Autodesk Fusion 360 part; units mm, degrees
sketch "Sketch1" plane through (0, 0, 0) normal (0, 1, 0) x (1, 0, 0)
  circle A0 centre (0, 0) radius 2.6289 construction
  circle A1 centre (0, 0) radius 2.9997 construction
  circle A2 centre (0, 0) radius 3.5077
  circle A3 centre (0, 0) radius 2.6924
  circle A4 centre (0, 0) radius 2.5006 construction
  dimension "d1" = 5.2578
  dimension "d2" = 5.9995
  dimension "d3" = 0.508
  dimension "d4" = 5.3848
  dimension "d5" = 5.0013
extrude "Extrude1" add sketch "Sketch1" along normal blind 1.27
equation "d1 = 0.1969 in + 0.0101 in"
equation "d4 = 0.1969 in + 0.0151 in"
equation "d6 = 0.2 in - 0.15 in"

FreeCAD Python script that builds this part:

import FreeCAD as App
import Part
import Sketcher

V = App.Vector
Q = App.Units.Quantity

doc = App.newDocument("Part")
body = doc.addObject("PartDesign::Body", "Body")

# Sketch on XZ plane
sketch1 = doc.addObject("Sketcher::SketchObject", "Sketch")
body.addObject(sketch1)
sketch1.AttachmentSupport = (doc.XZ_Plane, [""])
sketch1.MapMode = "FlatFace"
sketch1.addGeometry([
    Part.Circle(V(0, 0, 0), V(0, 0, 1), 3.5),
    Part.Circle(V(0, 0, 0), V(0, 0, 1), 2.7),
], False)
sketch1.addConstraint([
    Sketcher.Constraint("Coincident", 0, 3, -1, 1),
    Sketcher.Constraint("Coincident", 1, 3, -1, 1),
    Sketcher.Constraint("Diameter", 1, Q("0.212 in")),
    Sketcher.Constraint("Diameter", 0, Q("0.2762 in")),
])
pad1 = doc.addObject("PartDesign::Pad", "Pad")
body.addObject(pad1)
pad1.Profile = sketch1
pad1.Length = Q("0.05 in")
pad1.Reversed = True

doc.recompute()
